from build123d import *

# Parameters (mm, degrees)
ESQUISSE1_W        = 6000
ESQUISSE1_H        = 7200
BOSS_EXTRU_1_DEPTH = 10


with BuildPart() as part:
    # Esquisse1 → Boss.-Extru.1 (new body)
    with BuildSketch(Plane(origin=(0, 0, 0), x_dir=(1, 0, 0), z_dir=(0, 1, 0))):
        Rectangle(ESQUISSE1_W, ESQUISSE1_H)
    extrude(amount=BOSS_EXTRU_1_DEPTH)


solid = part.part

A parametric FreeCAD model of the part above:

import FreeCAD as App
import Part
import Sketcher

V = App.Vector

doc = App.newDocument("Part")
params = doc.addObject("Spreadsheet::Sheet", "Params")
for row, (alias, value) in enumerate([
    ("sketch1_width", "6000 mm"),
    ("sketch1_height", "7200 mm"),
    ("pad1_length", "10 mm"),
], start=1):
    params.set(f"A{row}", alias)
    params.set(f"B{row}", "=" + value)
    params.setAlias(f"B{row}", alias)

body = doc.addObject("PartDesign::Body", "Body")

sketch1 = body.newObject("Sketcher::SketchObject", "Sketch")
sketch1.AttachmentSupport = (doc.getObject("XZ_Plane"), [""])
sketch1.MapMode = "FlatFace"
sketch1.addGeometry([
    Part.LineSegment(V(-3000, -3600, 0), V(-3000, 3600, 0)),
    Part.LineSegment(V(-3000, 3600, 0), V(3000, 3600, 0)),
    Part.LineSegment(V(3000, 3600, 0), V(3000, -3600, 0)),
    Part.LineSegment(V(3000, -3600, 0), V(-3000, -3600, 0)),
], False)
sketch1.addConstraint([
    Sketcher.Constraint("Coincident", 0, 2, 1, 1),
    Sketcher.Constraint("Coincident", 1, 2, 2, 1),
    Sketcher.Constraint("Coincident", 2, 2, 3, 1),
    Sketcher.Constraint("Coincident", 3, 2, 0, 1),
    Sketcher.Constraint("Vertical", 0),
    Sketcher.Constraint("Horizontal", 1),
    Sketcher.Constraint("Vertical", 2),
    Sketcher.Constraint("Horizontal", 3),
    Sketcher.Constraint("Symmetric", 0, 2, 2, 2, -1, 1),
    Sketcher.Constraint("DistanceX", 1, 1, 1, 2, 6000.0),
    Sketcher.Constraint("DistanceY", 0, 1, 0, 2, 7200.0),
])
sketch1.setExpression("Constraints[9]", "Params.sketch1_width")
sketch1.setExpression("Constraints[10]", "Params.sketch1_height")
pad1 = body.newObject("PartDesign::Pad", "Pad")
pad1.Profile = sketch1
pad1.setExpression("Length", "Params.pad1_length")
pad1.Reversed = True

doc.recompute()
